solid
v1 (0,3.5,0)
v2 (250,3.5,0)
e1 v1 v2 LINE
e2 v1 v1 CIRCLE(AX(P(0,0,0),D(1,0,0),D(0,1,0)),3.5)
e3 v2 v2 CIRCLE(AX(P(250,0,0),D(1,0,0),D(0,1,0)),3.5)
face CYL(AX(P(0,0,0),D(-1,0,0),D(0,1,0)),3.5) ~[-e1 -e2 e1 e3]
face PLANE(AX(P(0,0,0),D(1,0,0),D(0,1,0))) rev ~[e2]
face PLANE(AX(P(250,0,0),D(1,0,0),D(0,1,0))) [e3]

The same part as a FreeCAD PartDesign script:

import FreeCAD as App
import Part
import Sketcher

doc = App.newDocument("Part")
body = doc.addObject("PartDesign::Body", "Body")

# Sketch on YZ plane
sketch1 = body.newObject("Sketcher::SketchObject", "Sketch")
sketch1.AttachmentSupport = (doc.getObject("YZ_Plane"), [""])
sketch1.MapMode = "FlatFace"
sketch1.addGeometry(Part.Circle(App.Vector(0, 0, 0), App.Vector(0, 0, 1), 3.5), False)
sketch1.addConstraint([
    Sketcher.Constraint("Coincident", 0, 3, -1, 1),
    Sketcher.Constraint("Diameter", 0, 7.0),
])
pad1 = body.newObject("PartDesign::Pad", "Pad")
pad1.Profile = sketch1
pad1.Length = 250

doc.recompute()
